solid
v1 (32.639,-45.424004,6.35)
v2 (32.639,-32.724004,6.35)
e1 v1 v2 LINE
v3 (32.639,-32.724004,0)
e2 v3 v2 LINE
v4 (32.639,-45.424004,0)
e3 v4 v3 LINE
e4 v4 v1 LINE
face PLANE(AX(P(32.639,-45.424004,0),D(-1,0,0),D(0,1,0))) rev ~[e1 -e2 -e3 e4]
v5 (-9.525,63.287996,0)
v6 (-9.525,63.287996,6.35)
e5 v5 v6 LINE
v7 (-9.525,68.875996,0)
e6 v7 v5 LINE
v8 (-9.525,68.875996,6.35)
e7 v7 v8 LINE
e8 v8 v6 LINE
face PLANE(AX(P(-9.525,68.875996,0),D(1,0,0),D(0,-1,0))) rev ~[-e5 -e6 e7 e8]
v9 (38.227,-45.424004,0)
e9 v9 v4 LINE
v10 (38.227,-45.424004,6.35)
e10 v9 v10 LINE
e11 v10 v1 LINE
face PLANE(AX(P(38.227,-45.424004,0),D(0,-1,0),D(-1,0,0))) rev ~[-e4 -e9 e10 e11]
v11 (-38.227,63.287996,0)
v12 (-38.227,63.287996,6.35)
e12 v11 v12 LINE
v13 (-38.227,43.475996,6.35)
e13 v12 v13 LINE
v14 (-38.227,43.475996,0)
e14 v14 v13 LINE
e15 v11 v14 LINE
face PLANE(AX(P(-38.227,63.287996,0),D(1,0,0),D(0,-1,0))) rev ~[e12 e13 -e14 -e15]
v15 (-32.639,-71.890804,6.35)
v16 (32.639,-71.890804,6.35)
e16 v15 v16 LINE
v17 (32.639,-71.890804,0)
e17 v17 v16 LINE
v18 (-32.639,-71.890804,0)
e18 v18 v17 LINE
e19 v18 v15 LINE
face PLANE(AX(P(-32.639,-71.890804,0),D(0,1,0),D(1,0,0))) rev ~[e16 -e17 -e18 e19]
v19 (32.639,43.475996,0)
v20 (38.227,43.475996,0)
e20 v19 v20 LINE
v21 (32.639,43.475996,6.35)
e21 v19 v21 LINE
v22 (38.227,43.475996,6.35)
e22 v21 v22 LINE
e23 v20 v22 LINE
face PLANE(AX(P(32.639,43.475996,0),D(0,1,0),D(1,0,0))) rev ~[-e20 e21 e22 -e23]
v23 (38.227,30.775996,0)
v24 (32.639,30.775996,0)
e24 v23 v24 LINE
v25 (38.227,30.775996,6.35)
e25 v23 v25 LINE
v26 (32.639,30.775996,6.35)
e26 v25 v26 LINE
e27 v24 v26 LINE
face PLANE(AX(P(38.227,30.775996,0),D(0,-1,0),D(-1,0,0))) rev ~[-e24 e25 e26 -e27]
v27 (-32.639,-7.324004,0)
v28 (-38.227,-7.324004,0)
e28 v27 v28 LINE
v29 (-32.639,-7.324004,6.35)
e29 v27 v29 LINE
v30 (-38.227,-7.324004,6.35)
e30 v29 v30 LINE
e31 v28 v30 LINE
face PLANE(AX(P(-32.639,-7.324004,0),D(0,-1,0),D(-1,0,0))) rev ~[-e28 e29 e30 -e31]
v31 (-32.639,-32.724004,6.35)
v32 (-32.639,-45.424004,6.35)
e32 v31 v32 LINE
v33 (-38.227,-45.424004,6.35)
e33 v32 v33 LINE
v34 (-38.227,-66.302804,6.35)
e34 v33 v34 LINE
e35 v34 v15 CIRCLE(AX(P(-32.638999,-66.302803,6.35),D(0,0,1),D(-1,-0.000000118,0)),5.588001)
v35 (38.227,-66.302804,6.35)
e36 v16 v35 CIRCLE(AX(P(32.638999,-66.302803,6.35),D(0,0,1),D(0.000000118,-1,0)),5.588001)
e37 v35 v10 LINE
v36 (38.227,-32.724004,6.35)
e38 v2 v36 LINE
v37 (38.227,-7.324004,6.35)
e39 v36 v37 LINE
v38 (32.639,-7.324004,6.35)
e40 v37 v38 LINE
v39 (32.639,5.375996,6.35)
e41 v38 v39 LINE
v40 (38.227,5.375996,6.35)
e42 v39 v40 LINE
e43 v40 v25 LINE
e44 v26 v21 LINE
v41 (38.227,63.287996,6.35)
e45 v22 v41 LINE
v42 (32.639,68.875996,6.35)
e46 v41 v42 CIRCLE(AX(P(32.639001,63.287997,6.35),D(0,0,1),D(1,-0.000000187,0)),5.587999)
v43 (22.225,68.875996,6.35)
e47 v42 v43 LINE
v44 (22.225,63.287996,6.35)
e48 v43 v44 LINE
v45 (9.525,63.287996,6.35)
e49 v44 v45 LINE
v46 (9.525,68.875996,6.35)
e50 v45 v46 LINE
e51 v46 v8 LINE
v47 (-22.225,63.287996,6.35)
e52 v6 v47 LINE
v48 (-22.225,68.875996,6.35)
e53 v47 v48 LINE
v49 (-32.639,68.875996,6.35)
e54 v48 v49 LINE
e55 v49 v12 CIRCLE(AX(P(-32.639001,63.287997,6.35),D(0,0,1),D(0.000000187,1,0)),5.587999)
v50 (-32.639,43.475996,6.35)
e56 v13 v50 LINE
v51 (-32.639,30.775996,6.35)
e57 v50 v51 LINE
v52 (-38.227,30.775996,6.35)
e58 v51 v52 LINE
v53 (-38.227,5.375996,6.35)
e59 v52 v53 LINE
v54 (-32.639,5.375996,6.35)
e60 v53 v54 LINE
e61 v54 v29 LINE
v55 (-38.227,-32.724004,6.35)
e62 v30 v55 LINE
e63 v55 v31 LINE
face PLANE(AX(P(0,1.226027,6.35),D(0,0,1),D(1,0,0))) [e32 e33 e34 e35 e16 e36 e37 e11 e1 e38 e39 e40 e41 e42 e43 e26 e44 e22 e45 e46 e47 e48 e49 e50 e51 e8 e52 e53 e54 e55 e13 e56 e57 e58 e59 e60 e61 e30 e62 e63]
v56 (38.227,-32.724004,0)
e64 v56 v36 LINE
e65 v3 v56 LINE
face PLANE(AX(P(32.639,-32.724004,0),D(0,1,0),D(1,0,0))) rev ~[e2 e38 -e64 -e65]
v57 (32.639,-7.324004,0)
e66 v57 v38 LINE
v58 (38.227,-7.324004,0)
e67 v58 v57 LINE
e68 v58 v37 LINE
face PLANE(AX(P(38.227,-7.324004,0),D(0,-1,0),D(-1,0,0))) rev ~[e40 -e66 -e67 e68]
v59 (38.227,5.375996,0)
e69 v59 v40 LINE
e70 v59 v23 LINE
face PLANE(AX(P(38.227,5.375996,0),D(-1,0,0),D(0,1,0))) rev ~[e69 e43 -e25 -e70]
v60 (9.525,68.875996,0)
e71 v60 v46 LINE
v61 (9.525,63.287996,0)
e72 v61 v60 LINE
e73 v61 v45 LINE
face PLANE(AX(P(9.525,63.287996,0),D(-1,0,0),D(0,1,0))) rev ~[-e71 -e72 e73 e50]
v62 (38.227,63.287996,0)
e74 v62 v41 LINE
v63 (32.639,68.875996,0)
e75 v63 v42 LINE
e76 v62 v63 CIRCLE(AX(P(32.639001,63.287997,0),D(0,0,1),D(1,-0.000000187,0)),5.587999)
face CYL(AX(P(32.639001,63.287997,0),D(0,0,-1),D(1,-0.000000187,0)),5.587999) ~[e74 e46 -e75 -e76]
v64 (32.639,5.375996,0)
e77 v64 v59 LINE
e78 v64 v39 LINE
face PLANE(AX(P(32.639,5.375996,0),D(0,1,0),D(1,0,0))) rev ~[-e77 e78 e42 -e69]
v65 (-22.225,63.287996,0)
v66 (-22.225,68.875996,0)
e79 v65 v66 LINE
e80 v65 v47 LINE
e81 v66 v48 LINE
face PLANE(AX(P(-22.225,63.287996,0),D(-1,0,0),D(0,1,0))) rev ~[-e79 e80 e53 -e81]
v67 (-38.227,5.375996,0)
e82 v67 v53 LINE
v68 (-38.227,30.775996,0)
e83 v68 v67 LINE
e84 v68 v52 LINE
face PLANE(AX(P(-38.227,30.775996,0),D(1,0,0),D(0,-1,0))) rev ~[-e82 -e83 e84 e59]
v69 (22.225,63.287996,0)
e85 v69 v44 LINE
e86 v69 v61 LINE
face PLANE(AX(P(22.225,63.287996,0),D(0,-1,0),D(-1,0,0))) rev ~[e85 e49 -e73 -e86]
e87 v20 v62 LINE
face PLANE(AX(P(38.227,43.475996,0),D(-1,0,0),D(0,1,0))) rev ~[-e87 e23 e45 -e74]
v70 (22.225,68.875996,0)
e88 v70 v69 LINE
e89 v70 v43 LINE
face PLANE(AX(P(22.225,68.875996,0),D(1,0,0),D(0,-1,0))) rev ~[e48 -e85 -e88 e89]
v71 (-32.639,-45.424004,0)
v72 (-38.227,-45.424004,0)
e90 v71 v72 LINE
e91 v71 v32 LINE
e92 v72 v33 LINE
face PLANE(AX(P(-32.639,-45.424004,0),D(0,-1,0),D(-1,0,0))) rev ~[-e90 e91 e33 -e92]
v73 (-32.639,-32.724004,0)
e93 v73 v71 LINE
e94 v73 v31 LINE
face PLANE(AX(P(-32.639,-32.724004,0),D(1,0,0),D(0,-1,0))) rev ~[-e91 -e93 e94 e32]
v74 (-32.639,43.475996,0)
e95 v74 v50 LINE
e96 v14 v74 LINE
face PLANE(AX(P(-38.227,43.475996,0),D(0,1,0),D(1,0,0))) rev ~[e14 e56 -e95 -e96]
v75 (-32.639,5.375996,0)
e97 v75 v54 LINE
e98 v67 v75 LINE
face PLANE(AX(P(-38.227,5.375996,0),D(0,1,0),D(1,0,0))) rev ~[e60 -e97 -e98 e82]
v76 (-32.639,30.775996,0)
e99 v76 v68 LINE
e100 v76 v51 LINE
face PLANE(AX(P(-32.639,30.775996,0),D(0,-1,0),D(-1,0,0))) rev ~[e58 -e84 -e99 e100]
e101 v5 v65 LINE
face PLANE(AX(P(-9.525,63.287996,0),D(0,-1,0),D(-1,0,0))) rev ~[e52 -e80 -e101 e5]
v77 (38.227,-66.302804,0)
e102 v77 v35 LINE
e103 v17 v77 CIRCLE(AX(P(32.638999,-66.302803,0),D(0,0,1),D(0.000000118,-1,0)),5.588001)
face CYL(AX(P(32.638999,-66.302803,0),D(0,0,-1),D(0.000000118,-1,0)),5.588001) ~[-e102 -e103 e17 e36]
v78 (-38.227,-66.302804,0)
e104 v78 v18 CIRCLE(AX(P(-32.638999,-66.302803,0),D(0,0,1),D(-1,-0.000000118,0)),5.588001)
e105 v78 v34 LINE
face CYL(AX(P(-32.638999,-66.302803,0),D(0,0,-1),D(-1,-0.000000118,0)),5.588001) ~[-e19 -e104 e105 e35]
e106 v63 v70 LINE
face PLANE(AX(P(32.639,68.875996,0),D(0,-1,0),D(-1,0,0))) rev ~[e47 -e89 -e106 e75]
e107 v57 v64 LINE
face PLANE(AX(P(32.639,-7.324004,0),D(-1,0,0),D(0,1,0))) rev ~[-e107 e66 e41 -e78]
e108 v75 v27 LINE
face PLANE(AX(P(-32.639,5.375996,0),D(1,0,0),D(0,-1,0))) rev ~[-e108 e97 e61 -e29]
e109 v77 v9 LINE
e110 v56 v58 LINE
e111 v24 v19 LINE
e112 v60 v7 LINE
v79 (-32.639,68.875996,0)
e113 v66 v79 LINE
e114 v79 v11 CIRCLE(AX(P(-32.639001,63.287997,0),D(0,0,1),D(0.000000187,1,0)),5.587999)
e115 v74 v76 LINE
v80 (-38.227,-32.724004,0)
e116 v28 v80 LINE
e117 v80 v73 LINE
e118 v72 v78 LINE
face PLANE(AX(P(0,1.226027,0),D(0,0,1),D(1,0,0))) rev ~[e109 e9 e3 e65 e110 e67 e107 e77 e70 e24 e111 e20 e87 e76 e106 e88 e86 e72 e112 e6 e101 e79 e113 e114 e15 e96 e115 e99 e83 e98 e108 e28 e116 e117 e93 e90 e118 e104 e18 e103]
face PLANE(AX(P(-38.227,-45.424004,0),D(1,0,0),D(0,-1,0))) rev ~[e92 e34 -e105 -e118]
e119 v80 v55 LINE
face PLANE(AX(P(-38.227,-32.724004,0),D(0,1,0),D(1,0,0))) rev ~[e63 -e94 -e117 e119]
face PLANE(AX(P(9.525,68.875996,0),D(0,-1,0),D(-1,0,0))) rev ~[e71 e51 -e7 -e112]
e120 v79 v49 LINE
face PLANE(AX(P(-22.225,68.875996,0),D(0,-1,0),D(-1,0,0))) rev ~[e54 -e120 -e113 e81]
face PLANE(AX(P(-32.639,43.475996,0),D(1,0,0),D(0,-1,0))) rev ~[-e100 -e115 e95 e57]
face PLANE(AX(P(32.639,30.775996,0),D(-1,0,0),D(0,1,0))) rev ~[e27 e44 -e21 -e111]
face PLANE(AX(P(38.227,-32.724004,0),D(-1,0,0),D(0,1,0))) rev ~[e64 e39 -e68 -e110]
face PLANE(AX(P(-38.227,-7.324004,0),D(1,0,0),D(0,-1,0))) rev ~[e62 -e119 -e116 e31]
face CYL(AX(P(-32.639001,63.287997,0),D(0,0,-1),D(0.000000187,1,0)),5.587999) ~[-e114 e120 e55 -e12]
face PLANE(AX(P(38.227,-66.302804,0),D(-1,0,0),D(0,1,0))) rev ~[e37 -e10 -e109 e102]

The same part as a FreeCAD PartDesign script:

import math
import FreeCAD as App
import Part
import Sketcher
Q = App.Units.Quantity

doc = App.newDocument("Part")
params = doc.addObject("Spreadsheet::Sheet", "Params")
for row, (alias, value) in enumerate([
    ("sketch1_height", "1 in"),
    ("sketch1_radius", "0.22 in"),
    ("sketch1_width", "0.5 in"),
    ("sketch1_width2", "0.41 in"),
    ("sketch1_width3", "2.57 in"),
    ("pad1_length", "0.25 in"),
], start=1):
    params.set(f"A{row}", alias)
    params.set(f"B{row}", "=" + value)
    params.setAlias(f"B{row}", alias)

body = doc.addObject("PartDesign::Body", "Body")

# Sketch on XY plane
sketch1 = body.newObject("Sketcher::SketchObject", "Sketch")
sketch1.AttachmentSupport = (doc.getObject("XY_Plane"), [""])
sketch1.MapMode = "FlatFace"
sketch1.addGeometry([
    Part.LineSegment(App.Vector(-22, 69, 0), App.Vector(-33, 69, 0)),  # 0
    Part.ArcOfCircle(Part.Circle(App.Vector(-33, 63, 0), App.Vector(0, 0, 1), 6), math.radians(90), math.radians(180)),  # 1
    Part.LineSegment(App.Vector(-38, 63, 0), App.Vector(-38, 43, 0)),  # 2
    Part.LineSegment(App.Vector(-38, 43, 0), App.Vector(-33, 43, 0)),  # 3
    Part.LineSegment(App.Vector(-33, 43, 0), App.Vector(-33, 31, 0)),  # 4
    Part.LineSegment(App.Vector(-33, 31, 0), App.Vector(-38, 31, 0)),  # 5
    Part.LineSegment(App.Vector(-38, 31, 0), App.Vector(-38, 5, 0)),  # 6
    Part.LineSegment(App.Vector(-38, 5, 0), App.Vector(-33, 5, 0)),  # 7
    Part.LineSegment(App.Vector(-33, 5, 0), App.Vector(-33, -7, 0)),  # 8
    Part.LineSegment(App.Vector(-33, -7, 0), App.Vector(-38, -7, 0)),  # 9
    Part.LineSegment(App.Vector(-38, -7, 0), App.Vector(-38, -33, 0)),  # 10
    Part.LineSegment(App.Vector(-38, -33, 0), App.Vector(-33, -33, 0)),  # 11
    Part.LineSegment(App.Vector(-33, -33, 0), App.Vector(-33, -45, 0)),  # 12
    Part.LineSegment(App.Vector(-33, -45, 0), App.Vector(-38, -45, 0)),  # 13
    Part.LineSegment(App.Vector(-38, -45, 0), App.Vector(-38, -66, 0)),  # 14
    Part.ArcOfCircle(Part.Circle(App.Vector(-33, -66, 0), App.Vector(0, 0, 1), 6), math.radians(-180), math.radians(-90)),  # 15
    Part.LineSegment(App.Vector(-33, -72, 0), App.Vector(33, -72, 0)),  # 16
    Part.ArcOfCircle(Part.Circle(App.Vector(33, -66, 0), App.Vector(0, 0, 1), 6), math.radians(-90), math.radians(0)),  # 17
    Part.LineSegment(App.Vector(38, -66, 0), App.Vector(38, -45, 0)),  # 18
    Part.LineSegment(App.Vector(38, -45, 0), App.Vector(33, -45, 0)),  # 19
    Part.LineSegment(App.Vector(33, -45, 0), App.Vector(33, -33, 0)),  # 20
    Part.LineSegment(App.Vector(33, -33, 0), App.Vector(38, -33, 0)),  # 21
    Part.LineSegment(App.Vector(38, -33, 0), App.Vector(38, -7, 0)),  # 22
    Part.LineSegment(App.Vector(38, -7, 0), App.Vector(33, -7, 0)),  # 23
    Part.LineSegment(App.Vector(33, -7, 0), App.Vector(33, 5, 0)),  # 24
    Part.LineSegment(App.Vector(33, 5, 0), App.Vector(38, 5, 0)),  # 25
    Part.LineSegment(App.Vector(38, 5, 0), App.Vector(38, 31, 0)),  # 26
    Part.LineSegment(App.Vector(38, 31, 0), App.Vector(33, 31, 0)),  # 27
    Part.LineSegment(App.Vector(33, 31, 0), App.Vector(33, 43, 0)),  # 28
    Part.LineSegment(App.Vector(33, 43, 0), App.Vector(38, 43, 0)),  # 29
    Part.LineSegment(App.Vector(38, 43, 0), App.Vector(38, 63, 0)),  # 30
    Part.ArcOfCircle(Part.Circle(App.Vector(33, 63, 0), App.Vector(0, 0, 1), 6), math.radians(0), math.radians(90)),  # 31
    Part.LineSegment(App.Vector(33, 69, 0), App.Vector(22, 69, 0)),  # 32
    Part.LineSegment(App.Vector(22, 69, 0), App.Vector(22, 63, 0)),  # 33
    Part.LineSegment(App.Vector(22, 63, 0), App.Vector(10, 63, 0)),  # 34
    Part.LineSegment(App.Vector(10, 63, 0), App.Vector(10, 69, 0)),  # 35
    Part.LineSegment(App.Vector(10, 69, 0), App.Vector(-10, 69, 0)),  # 36
    Part.LineSegment(App.Vector(-10, 69, 0), App.Vector(-10, 63, 0)),  # 37
    Part.LineSegment(App.Vector(-10, 63, 0), App.Vector(-22, 63, 0)),  # 38
    Part.LineSegment(App.Vector(-22, 63, 0), App.Vector(-22, 69, 0)),  # 39
], False)
sketch1.addConstraint([
    Sketcher.Constraint("Tangent", 0, 2, 1, 1),
    Sketcher.Constraint("Tangent", 1, 2, 2, 1),
    Sketcher.Constraint("Coincident", 2, 2, 3, 1),
    Sketcher.Constraint("Coincident", 3, 2, 4, 1),
    Sketcher.Constraint("Coincident", 4, 2, 5, 1),
    Sketcher.Constraint("Coincident", 5, 2, 6, 1),
    Sketcher.Constraint("Coincident", 6, 2, 7, 1),
    Sketcher.Constraint("Coincident", 7, 2, 8, 1),
    Sketcher.Constraint("Coincident", 8, 2, 9, 1),
    Sketcher.Constraint("Coincident", 9, 2, 10, 1),
    Sketcher.Constraint("Coincident", 10, 2, 11, 1),
    Sketcher.Constraint("Coincident", 11, 2, 12, 1),
    Sketcher.Constraint("Coincident", 12, 2, 13, 1),
    Sketcher.Constraint("Coincident", 13, 2, 14, 1),
    Sketcher.Constraint("Tangent", 14, 2, 15, 1),
    Sketcher.Constraint("Tangent", 15, 2, 16, 1),
    Sketcher.Constraint("Tangent", 16, 2, 17, 1),
    Sketcher.Constraint("Tangent", 17, 2, 18, 1),
    Sketcher.Constraint("Coincident", 18, 2, 19, 1),
    Sketcher.Constraint("Coincident", 19, 2, 20, 1),
    Sketcher.Constraint("Coincident", 20, 2, 21, 1),
    Sketcher.Constraint("Coincident", 21, 2, 22, 1),
    Sketcher.Constraint("Coincident", 22, 2, 23, 1),
    Sketcher.Constraint("Coincident", 23, 2, 24, 1),
    Sketcher.Constraint("Coincident", 24, 2, 25, 1),
    Sketcher.Constraint("Coincident", 25, 2, 26, 1),
    Sketcher.Constraint("Coincident", 26, 2, 27, 1),
    Sketcher.Constraint("Coincident", 27, 2, 28, 1),
    Sketcher.Constraint("Coincident", 28, 2, 29, 1),
    Sketcher.Constraint("Coincident", 29, 2, 30, 1),
    Sketcher.Constraint("Tangent", 30, 2, 31, 1),
    Sketcher.Constraint("Tangent", 31, 2, 32, 1),
    Sketcher.Constraint("Coincident", 32, 2, 33, 1),
    Sketcher.Constraint("Coincident", 33, 2, 34, 1),
    Sketcher.Constraint("Coincident", 34, 2, 35, 1),
    Sketcher.Constraint("Coincident", 35, 2, 36, 1),
    Sketcher.Constraint("Coincident", 36, 2, 37, 1),
    Sketcher.Constraint("Coincident", 37, 2, 38, 1),
    Sketcher.Constraint("Coincident", 38, 2, 39, 1),
    Sketcher.Constraint("Coincident", 39, 2, 0, 1),
    Sketcher.Constraint("Horizontal", 0),
    Sketcher.Constraint("Vertical", 2),
    Sketcher.Constraint("Horizontal", 3),
    Sketcher.Constraint("Vertical", 4),
    Sketcher.Constraint("Horizontal", 5),
    Sketcher.Constraint("Vertical", 6),
    Sketcher.Constraint("Horizontal", 7),
    Sketcher.Constraint("Vertical", 8),
    Sketcher.Constraint("Horizontal", 9),
    Sketcher.Constraint("Vertical", 10),
    Sketcher.Constraint("Horizontal", 11),
    Sketcher.Constraint("Vertical", 12),
    Sketcher.Constraint("Horizontal", 13),
    Sketcher.Constraint("Vertical", 14),
    Sketcher.Constraint("Horizontal", 16),
    Sketcher.Constraint("Vertical", 18),
    Sketcher.Constraint("Horizontal", 19),
    Sketcher.Constraint("Vertical", 20),
    Sketcher.Constraint("Horizontal", 21),
    Sketcher.Constraint("Vertical", 22),
    Sketcher.Constraint("Horizontal", 23),
    Sketcher.Constraint("Vertical", 24),
    Sketcher.Constraint("Horizontal", 25),
    Sketcher.Constraint("Vertical", 26),
    Sketcher.Constraint("Horizontal", 27),
    Sketcher.Constraint("Vertical", 28),
    Sketcher.Constraint("Horizontal", 29),
    Sketcher.Constraint("Vertical", 30),
    Sketcher.Constraint("Horizontal", 32),
    Sketcher.Constraint("Vertical", 33),
    Sketcher.Constraint("Horizontal", 34),
    Sketcher.Constraint("Vertical", 35),
    Sketcher.Constraint("Horizontal", 36),
    Sketcher.Constraint("Vertical", 37),
    Sketcher.Constraint("Horizontal", 38),
    Sketcher.Constraint("Vertical", 39),
    Sketcher.Constraint("Equal", 1, 15),
    Sketcher.Constraint("Equal", 15, 17),
    Sketcher.Constraint("Equal", 17, 31),
    Sketcher.Constraint("Symmetric", 1, 3, 31, 3, -2),
    Sketcher.Constraint("Symmetric", 13, 2, 18, 2, -2),
    Sketcher.Constraint("Symmetric", 11, 2, 20, 2, -2),
    Sketcher.Constraint("Symmetric", 9, 2, 22, 2, -2),
    Sketcher.Constraint("Symmetric", 7, 2, 24, 2, -2),
    Sketcher.Constraint("Symmetric", 5, 2, 26, 2, -2),
    Sketcher.Constraint("Symmetric", 3, 2, 28, 2, -2),
    Sketcher.Constraint("Symmetric", 34, 2, 37, 2, -2),
    Sketcher.Constraint("Horizontal", 30, 2, 33, 2),
    Sketcher.Constraint("Horizontal", 32, 2, 35, 2),
    Sketcher.Constraint("Vertical", 1, 3, 15, 3),
    Sketcher.Constraint("Vertical", 0, 2, 3, 2),
    Sketcher.Constraint("Vertical", 2, 2, 5, 2),
    Sketcher.Constraint("Vertical", 4, 2, 7, 2),
    Sketcher.Constraint("Vertical", 6, 2, 9, 2),
    Sketcher.Constraint("Vertical", 8, 2, 11, 2),
    Sketcher.Constraint("Equal", 0, 32),
    Sketcher.Constraint("Equal", 38, 4),
    Sketcher.Constraint("Equal", 4, 8),
    Sketcher.Constraint("Equal", 6, 10),
    Sketcher.Constraint("Equal", 8, 12),
    Sketcher.Constraint("DistanceY", 6, 2, 6, 1, Q("1 in")),
    Sketcher.Constraint("Radius", 1, Q("0.22 in")),
    Sketcher.Constraint("DistanceX", 34, 2, 34, 1, Q("0.5 in")),
    Sketcher.Constraint("DistanceY", 2, 2, 0, 2, Q("1 in")),
    Sketcher.Constraint("DistanceX", 0, 2, 0, 1, Q("0.41 in")),
    Sketcher.Constraint("DistanceX", 16, 1, 16, 2, Q("2.57 in")),
    Sketcher.Constraint("DistanceY", 14, 2, 14, 1, Q("0.822 in")),
    Sketcher.Constraint("DistanceY", -1, 1, 1, 3, Q("63.287997 mm")),
])
sketch1.setExpression("Constraints[100]", "Params.sketch1_height")
sketch1.setExpression("Constraints[101]", "Params.sketch1_radius")
sketch1.setExpression("Constraints[102]", "Params.sketch1_width")
sketch1.setExpression("Constraints[104]", "Params.sketch1_width2")
sketch1.setExpression("Constraints[105]", "Params.sketch1_width3")
pad1 = body.newObject("PartDesign::Pad", "Pad")
pad1.Profile = sketch1
pad1.setExpression("Length", "Params.pad1_length")

doc.recompute()
